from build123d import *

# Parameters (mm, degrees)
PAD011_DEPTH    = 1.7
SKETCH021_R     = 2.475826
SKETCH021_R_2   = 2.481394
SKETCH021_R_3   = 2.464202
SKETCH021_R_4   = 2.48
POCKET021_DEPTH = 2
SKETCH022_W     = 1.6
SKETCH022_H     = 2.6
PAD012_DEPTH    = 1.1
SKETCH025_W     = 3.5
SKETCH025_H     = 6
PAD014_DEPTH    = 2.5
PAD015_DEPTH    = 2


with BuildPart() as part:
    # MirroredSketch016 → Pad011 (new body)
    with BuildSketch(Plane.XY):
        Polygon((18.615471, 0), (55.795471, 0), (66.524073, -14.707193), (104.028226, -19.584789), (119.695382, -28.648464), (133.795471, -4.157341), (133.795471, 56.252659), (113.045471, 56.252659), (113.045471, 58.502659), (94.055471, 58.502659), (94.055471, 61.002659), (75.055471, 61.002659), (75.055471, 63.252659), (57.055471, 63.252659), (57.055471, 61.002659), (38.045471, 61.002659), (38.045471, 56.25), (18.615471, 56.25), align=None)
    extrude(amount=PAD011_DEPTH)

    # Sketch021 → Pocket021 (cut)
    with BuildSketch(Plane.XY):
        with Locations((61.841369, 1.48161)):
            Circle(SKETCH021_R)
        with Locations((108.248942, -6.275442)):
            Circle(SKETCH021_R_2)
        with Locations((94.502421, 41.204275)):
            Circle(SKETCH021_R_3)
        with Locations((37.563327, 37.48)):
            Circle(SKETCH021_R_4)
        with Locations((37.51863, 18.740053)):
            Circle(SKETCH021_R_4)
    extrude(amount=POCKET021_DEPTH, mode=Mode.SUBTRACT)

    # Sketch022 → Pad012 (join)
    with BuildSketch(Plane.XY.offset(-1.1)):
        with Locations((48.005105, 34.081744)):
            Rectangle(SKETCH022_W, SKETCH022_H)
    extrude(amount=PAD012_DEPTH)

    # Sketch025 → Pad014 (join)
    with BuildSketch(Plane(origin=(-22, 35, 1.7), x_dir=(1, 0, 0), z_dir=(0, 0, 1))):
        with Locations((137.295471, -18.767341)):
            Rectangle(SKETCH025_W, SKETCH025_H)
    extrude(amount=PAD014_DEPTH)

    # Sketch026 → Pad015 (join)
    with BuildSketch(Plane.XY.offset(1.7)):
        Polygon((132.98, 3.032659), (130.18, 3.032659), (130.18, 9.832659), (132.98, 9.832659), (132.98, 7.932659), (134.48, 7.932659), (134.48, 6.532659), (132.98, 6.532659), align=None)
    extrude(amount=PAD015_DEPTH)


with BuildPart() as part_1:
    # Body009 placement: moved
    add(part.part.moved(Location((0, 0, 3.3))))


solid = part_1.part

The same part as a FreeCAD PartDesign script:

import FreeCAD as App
import Part
import Sketcher
from FreeCAD import Vector
Q = App.Units.Quantity

doc = App.newDocument("Part")
body = doc.addObject("PartDesign::Body", "Body")

sketch1 = body.newObject("Sketcher::SketchObject", "Sketch")
sketch1.AttachmentSupport = (doc.getObject("XY_Plane"), [""])
sketch1.MapMode = "FlatFace"
sketch1.addGeometry([
    Part.LineSegment(Vector(18.6, 0, 0), Vector(55.8, 0, 0)),
    Part.LineSegment(Vector(55.8, 0, 0), Vector(66.5, -14.7, 0)),
    Part.LineSegment(Vector(66.5, -14.7, 0), Vector(104, -19.6, 0)),
    Part.LineSegment(Vector(104, -19.6, 0), Vector(119.7, -28.6, 0)),
    Part.LineSegment(Vector(119.7, -28.6, 0), Vector(133.8, -4.2, 0)),
    Part.LineSegment(Vector(133.8, -4.2, 0), Vector(133.8, 56.3, 0)),
    Part.LineSegment(Vector(133.8, 56.3, 0), Vector(113, 56.3, 0)),
    Part.LineSegment(Vector(113, 56.3, 0), Vector(113, 58.5, 0)),
    Part.LineSegment(Vector(113, 58.5, 0), Vector(94.1, 58.5, 0)),
    Part.LineSegment(Vector(94.1, 58.5, 0), Vector(94.1, 61, 0)),
    Part.LineSegment(Vector(94.1, 61, 0), Vector(75.1, 61, 0)),
    Part.LineSegment(Vector(75.1, 61, 0), Vector(75.1, 63.3, 0)),
    Part.LineSegment(Vector(75.1, 63.3, 0), Vector(57.1, 63.3, 0)),
    Part.LineSegment(Vector(57.1, 63.3, 0), Vector(57.1, 61, 0)),
    Part.LineSegment(Vector(57.1, 61, 0), Vector(38, 61, 0)),
    Part.LineSegment(Vector(38, 61, 0), Vector(38, 56.2, 0)),
    Part.LineSegment(Vector(38, 56.2, 0), Vector(18.6, 56.2, 0)),
    Part.LineSegment(Vector(18.6, 56.2, 0), Vector(18.6, 0, 0)),
], False)
sketch1.addConstraint([
    Sketcher.Constraint("Coincident", 0, 2, 1, 1),
    Sketcher.Constraint("Coincident", 1, 2, 2, 1),
    Sketcher.Constraint("Coincident", 2, 2, 3, 1),
    Sketcher.Constraint("Coincident", 3, 2, 4, 1),
    Sketcher.Constraint("Coincident", 4, 2, 5, 1),
    Sketcher.Constraint("Coincident", 5, 2, 6, 1),
    Sketcher.Constraint("Coincident", 6, 2, 7, 1),
    Sketcher.Constraint("Coincident", 7, 2, 8, 1),
    Sketcher.Constraint("Coincident", 8, 2, 9, 1),
    Sketcher.Constraint("Coincident", 9, 2, 10, 1),
    Sketcher.Constraint("Coincident", 10, 2, 11, 1),
    Sketcher.Constraint("Coincident", 11, 2, 12, 1),
    Sketcher.Constraint("Coincident", 12, 2, 13, 1),
    Sketcher.Constraint("Coincident", 13, 2, 14, 1),
    Sketcher.Constraint("Coincident", 14, 2, 15, 1),
    Sketcher.Constraint("Coincident", 15, 2, 16, 1),
    Sketcher.Constraint("Coincident", 16, 2, 17, 1),
    Sketcher.Constraint("Coincident", 17, 2, 0, 1),
    Sketcher.Constraint("Horizontal", 0),
    Sketcher.Constraint("Vertical", 5),
    Sketcher.Constraint("Horizontal", 6),
    Sketcher.Constraint("Vertical", 7),
    Sketcher.Constraint("Horizontal", 8),
    Sketcher.Constraint("Vertical", 9),
    Sketcher.Constraint("Horizontal", 10),
    Sketcher.Constraint("Vertical", 11),
    Sketcher.Constraint("Horizontal", 12),
    Sketcher.Constraint("Vertical", 13),
    Sketcher.Constraint("Horizontal", 14),
    Sketcher.Constraint("Vertical", 15),
    Sketcher.Constraint("Horizontal", 16),
    Sketcher.Constraint("Vertical", 17),
    Sketcher.Constraint("PointOnObject", 0, 2, -1),
    Sketcher.Constraint("Horizontal", 10, 2, 13, 2),
    Sketcher.Constraint("Equal", 7, 11),
    Sketcher.Constraint("DistanceX", 10, 2, 10, 1, 19.0),
    Sketcher.Constraint("DistanceX", 12, 2, 12, 1, 18.0),
    Sketcher.Constraint("DistanceY", 9, 1, 9, 2, 2.5),
    Sketcher.Constraint("DistanceX", 0, 2, 4, 2, 78.0),
    Sketcher.Constraint("DistanceY", 6, 2, 11, 2, 7.0),
    Sketcher.Constraint("Distance", 3, 18.099999),
    Sketcher.Constraint("DistanceX", 0, 1, 0, 2, 37.18),
    Sketcher.Constraint("DistanceX", 6, 2, 6, 1, 20.75),
    Sketcher.Constraint("DistanceX", 8, 2, 8, 1, 18.99),
    Sketcher.Constraint("DistanceX", 14, 2, 14, 1, 19.01),
    Sketcher.Constraint("DistanceY", 5, 1, 5, 2, 60.41),
    Sketcher.Constraint("DistanceY", 17, 2, 17, 1, 56.25),
    Sketcher.Constraint("Angle", 1, Q("-53.89 deg")),
    Sketcher.Constraint("Angle", 2, Q("-7.410001 deg")),
    Sketcher.Constraint("Angle", 3, Q("-30.049999 deg")),
    Sketcher.Constraint("Angle", 4, Q("60.07 deg")),
    Sketcher.Constraint("Distance", 2, 37.82),
    Sketcher.Constraint("Distance", 4, 28.26),
    Sketcher.Constraint("DistanceX", -1, 1, 0, 2, 55.795471),
])
pad1 = body.newObject("PartDesign::Pad", "Pad")
pad1.Profile = sketch1
pad1.Length = 1.7

sketch2 = body.newObject("Sketcher::SketchObject", "Sketch001")
sketch2.AttachmentSupport = (doc.getObject("XY_Plane"), [""])
sketch2.MapMode = "FlatFace"
sketch2.addGeometry([
    Part.Circle(Vector(61.8, 1.5, 0), Vector(0, 0, 1), 2.5),
    Part.Circle(Vector(108.2, -6.3, 0), Vector(0, 0, 1), 2.5),
    Part.Circle(Vector(94.5, 41.2, 0), Vector(0, 0, 1), 2.5),
    Part.Circle(Vector(37.6, 37.5, 0), Vector(0, 0, 1), 2.5),
    Part.Circle(Vector(37.5, 18.7, 0), Vector(0, 0, 1), 2.5),
], False)
sketch2.addConstraint([
    Sketcher.Constraint("Equal", 3, 4),
    Sketcher.Constraint("Diameter", 3, 4.96),
    Sketcher.Constraint("DistanceY", -1, 1, 3, 3, 37.48),
    Sketcher.Constraint("Diameter", 0, 4.951652),
    Sketcher.Constraint("Diameter", 1, 4.962788),
    Sketcher.Constraint("Diameter", 2, 4.928404),
    Sketcher.Constraint("DistanceX", -1, 1, 0, 3, 61.841369),
    Sketcher.Constraint("DistanceY", -1, 1, 0, 3, 1.48161),
    Sketcher.Constraint("DistanceX", -1, 1, 1, 3, 108.248942),
    Sketcher.Constraint("DistanceX", -1, 1, 2, 3, 94.502421),
    Sketcher.Constraint("DistanceX", -1, 1, 4, 3, 37.51863),
    Sketcher.Constraint("DistanceX", 3, 3, 0, 3, 24.278042),
    Sketcher.Constraint("DistanceY", 1, 3, 3, 3, 43.755442),
    Sketcher.Constraint("DistanceY", -1, 1, 2, 3, 41.204275),
    Sketcher.Constraint("DistanceY", -1, 1, 4, 3, 18.740053),
])
pocket1 = body.newObject("PartDesign::Pocket", "Pocket")
pocket1.Profile = sketch2
pocket1.Length = 2
pocket1.Reversed = True

sketch3 = body.newObject("Sketcher::SketchObject", "Sketch002")
sketch3.AttachmentSupport = (doc.getObject("XY_Plane"), [""])
sketch3.MapMode = "FlatFace"
sketch3.AttachmentOffset = App.Placement(Vector(0, 0, -1.1), App.Rotation())
sketch3.addGeometry([
    Part.LineSegment(Vector(47.2, 35.4, 0), Vector(47.2, 32.8, 0)),
    Part.LineSegment(Vector(47.2, 32.8, 0), Vector(48.8, 32.8, 0)),
    Part.LineSegment(Vector(48.8, 32.8, 0), Vector(48.8, 35.4, 0)),
    Part.LineSegment(Vector(48.8, 35.4, 0), Vector(47.2, 35.4, 0)),
], False)
sketch3.addConstraint([
    Sketcher.Constraint("Coincident", 0, 2, 1, 1),
    Sketcher.Constraint("Coincident", 1, 2, 2, 1),
    Sketcher.Constraint("Coincident", 2, 2, 3, 1),
    Sketcher.Constraint("Coincident", 3, 2, 0, 1),
    Sketcher.Constraint("Vertical", 0),
    Sketcher.Constraint("Horizontal", 1),
    Sketcher.Constraint("Vertical", 2),
    Sketcher.Constraint("Horizontal", 3),
    Sketcher.Constraint("DistanceX", 1, 1, 1, 2, 1.6),
    Sketcher.Constraint("DistanceY", 0, 2, 0, 1, 2.6),
    Sketcher.Constraint("DistanceX", -1, 1, 0, 2, 47.205105),
    Sketcher.Constraint("DistanceY", -1, 1, 0, 2, 32.781744),
])
pad2 = body.newObject("PartDesign::Pad", "Pad001")
pad2.Profile = sketch3
pad2.Length = 1.1

sketch4 = body.newObject("Sketcher::SketchObject", "Sketch003")
sketch4.AttachmentSupport = (doc.getObject("XY_Plane"), [""])
sketch4.MapMode = "FlatFace"
sketch4.AttachmentOffset = App.Placement(Vector(0, 0, 1.7), App.Rotation())
sketch4.addGeometry([
    Part.LineSegment(Vector(113.5, 19.2, 0), Vector(113.5, 13.2, 0)),
    Part.LineSegment(Vector(113.5, 13.2, 0), Vector(117, 13.2, 0)),
    Part.LineSegment(Vector(117, 13.2, 0), Vector(117, 19.2, 0)),
    Part.LineSegment(Vector(117, 19.2, 0), Vector(113.5, 19.2, 0)),
], False)
sketch4.addConstraint([
    Sketcher.Constraint("Coincident", 0, 2, 1, 1),
    Sketcher.Constraint("Coincident", 1, 2, 2, 1),
    Sketcher.Constraint("Coincident", 2, 2, 3, 1),
    Sketcher.Constraint("Coincident", 3, 2, 0, 1),
    Sketcher.Constraint("Vertical", 0),
    Sketcher.Constraint("Horizontal", 1),
    Sketcher.Constraint("Vertical", 2),
    Sketcher.Constraint("Horizontal", 3),
    Sketcher.Constraint("DistanceY", 0, 2, 0, 1, 6.0),
    Sketcher.Constraint("DistanceX", 1, 1, 1, 2, 3.5),
    Sketcher.Constraint("DistanceX", -1, 1, 0, 2, 113.545471),
    Sketcher.Constraint("DistanceY", -1, 1, 0, 2, 13.232659),
])
pad3 = body.newObject("PartDesign::Pad", "Pad002")
pad3.Profile = sketch4
pad3.Length = 2.5

sketch5 = body.newObject("Sketcher::SketchObject", "Sketch004")
sketch5.AttachmentSupport = (doc.getObject("XY_Plane"), [""])
sketch5.MapMode = "FlatFace"
sketch5.AttachmentOffset = App.Placement(Vector(0, 0, 1.7), App.Rotation())
sketch5.addGeometry([
    Part.LineSegment(Vector(130.2, 3, 0), Vector(133, 3, 0)),
    Part.LineSegment(Vector(133, 3, 0), Vector(133, 6.5, 0)),
    Part.LineSegment(Vector(133, 6.5, 0), Vector(134.5, 6.5, 0)),
    Part.LineSegment(Vector(134.5, 6.5, 0), Vector(134.5, 7.9, 0)),
    Part.LineSegment(Vector(134.5, 7.9, 0), Vector(133, 7.9, 0)),
    Part.LineSegment(Vector(133, 7.9, 0), Vector(133, 9.8, 0)),
    Part.LineSegment(Vector(133, 9.8, 0), Vector(130.2, 9.8, 0)),
    Part.LineSegment(Vector(130.2, 9.8, 0), Vector(130.2, 3, 0)),
], False)
sketch5.addConstraint([
    Sketcher.Constraint("Coincident", 0, 2, 1, 1),
    Sketcher.Constraint("Coincident", 1, 2, 2, 1),
    Sketcher.Constraint("Coincident", 2, 2, 3, 1),
    Sketcher.Constraint("Coincident", 3, 2, 4, 1),
    Sketcher.Constraint("Coincident", 4, 2, 5, 1),
    Sketcher.Constraint("Coincident", 5, 2, 6, 1),
    Sketcher.Constraint("Coincident", 6, 2, 7, 1),
    Sketcher.Constraint("Coincident", 7, 2, 0, 1),
    Sketcher.Constraint("Horizontal", 0),
    Sketcher.Constraint("Vertical", 1),
    Sketcher.Constraint("Horizontal", 2),
    Sketcher.Constraint("Vertical", 3),
    Sketcher.Constraint("Horizontal", 4),
    Sketcher.Constraint("Vertical", 5),
    Sketcher.Constraint("Horizontal", 6),
    Sketcher.Constraint("Vertical", 7),
    Sketcher.Constraint("Vertical", 1, 2, 4, 2),
    Sketcher.Constraint("DistanceX", 0, 1, 0, 2, 2.8),
    Sketcher.Constraint("DistanceX", 2, 1, 2, 2, 1.5),
    Sketcher.Constraint("DistanceY", 1, 1, 1, 2, 3.5),
    Sketcher.Constraint("DistanceY", 3, 1, 3, 2, 1.4),
    Sketcher.Constraint("DistanceY", 5, 1, 5, 2, 1.9),
    Sketcher.Constraint("DistanceX", -1, 1, 0, 2, 132.98),
    Sketcher.Constraint("DistanceY", -1, 1, 0, 2, 3.032659),
])
pad4 = body.newObject("PartDesign::Pad", "Pad003")
pad4.Profile = sketch5
pad4.Length = 2
body2 = doc.addObject("PartDesign::Body", "Body001")
doc.recompute()

body.Placement = App.Placement(Vector(0, 0, 3.3), App.Rotation(Vector(0, 0, 1), 0))
boolean = body2.newObject("PartDesign::Boolean", "Boolean")
boolean.Type = "Fuse"
boolean.addObjects([body])

doc.recompute()
